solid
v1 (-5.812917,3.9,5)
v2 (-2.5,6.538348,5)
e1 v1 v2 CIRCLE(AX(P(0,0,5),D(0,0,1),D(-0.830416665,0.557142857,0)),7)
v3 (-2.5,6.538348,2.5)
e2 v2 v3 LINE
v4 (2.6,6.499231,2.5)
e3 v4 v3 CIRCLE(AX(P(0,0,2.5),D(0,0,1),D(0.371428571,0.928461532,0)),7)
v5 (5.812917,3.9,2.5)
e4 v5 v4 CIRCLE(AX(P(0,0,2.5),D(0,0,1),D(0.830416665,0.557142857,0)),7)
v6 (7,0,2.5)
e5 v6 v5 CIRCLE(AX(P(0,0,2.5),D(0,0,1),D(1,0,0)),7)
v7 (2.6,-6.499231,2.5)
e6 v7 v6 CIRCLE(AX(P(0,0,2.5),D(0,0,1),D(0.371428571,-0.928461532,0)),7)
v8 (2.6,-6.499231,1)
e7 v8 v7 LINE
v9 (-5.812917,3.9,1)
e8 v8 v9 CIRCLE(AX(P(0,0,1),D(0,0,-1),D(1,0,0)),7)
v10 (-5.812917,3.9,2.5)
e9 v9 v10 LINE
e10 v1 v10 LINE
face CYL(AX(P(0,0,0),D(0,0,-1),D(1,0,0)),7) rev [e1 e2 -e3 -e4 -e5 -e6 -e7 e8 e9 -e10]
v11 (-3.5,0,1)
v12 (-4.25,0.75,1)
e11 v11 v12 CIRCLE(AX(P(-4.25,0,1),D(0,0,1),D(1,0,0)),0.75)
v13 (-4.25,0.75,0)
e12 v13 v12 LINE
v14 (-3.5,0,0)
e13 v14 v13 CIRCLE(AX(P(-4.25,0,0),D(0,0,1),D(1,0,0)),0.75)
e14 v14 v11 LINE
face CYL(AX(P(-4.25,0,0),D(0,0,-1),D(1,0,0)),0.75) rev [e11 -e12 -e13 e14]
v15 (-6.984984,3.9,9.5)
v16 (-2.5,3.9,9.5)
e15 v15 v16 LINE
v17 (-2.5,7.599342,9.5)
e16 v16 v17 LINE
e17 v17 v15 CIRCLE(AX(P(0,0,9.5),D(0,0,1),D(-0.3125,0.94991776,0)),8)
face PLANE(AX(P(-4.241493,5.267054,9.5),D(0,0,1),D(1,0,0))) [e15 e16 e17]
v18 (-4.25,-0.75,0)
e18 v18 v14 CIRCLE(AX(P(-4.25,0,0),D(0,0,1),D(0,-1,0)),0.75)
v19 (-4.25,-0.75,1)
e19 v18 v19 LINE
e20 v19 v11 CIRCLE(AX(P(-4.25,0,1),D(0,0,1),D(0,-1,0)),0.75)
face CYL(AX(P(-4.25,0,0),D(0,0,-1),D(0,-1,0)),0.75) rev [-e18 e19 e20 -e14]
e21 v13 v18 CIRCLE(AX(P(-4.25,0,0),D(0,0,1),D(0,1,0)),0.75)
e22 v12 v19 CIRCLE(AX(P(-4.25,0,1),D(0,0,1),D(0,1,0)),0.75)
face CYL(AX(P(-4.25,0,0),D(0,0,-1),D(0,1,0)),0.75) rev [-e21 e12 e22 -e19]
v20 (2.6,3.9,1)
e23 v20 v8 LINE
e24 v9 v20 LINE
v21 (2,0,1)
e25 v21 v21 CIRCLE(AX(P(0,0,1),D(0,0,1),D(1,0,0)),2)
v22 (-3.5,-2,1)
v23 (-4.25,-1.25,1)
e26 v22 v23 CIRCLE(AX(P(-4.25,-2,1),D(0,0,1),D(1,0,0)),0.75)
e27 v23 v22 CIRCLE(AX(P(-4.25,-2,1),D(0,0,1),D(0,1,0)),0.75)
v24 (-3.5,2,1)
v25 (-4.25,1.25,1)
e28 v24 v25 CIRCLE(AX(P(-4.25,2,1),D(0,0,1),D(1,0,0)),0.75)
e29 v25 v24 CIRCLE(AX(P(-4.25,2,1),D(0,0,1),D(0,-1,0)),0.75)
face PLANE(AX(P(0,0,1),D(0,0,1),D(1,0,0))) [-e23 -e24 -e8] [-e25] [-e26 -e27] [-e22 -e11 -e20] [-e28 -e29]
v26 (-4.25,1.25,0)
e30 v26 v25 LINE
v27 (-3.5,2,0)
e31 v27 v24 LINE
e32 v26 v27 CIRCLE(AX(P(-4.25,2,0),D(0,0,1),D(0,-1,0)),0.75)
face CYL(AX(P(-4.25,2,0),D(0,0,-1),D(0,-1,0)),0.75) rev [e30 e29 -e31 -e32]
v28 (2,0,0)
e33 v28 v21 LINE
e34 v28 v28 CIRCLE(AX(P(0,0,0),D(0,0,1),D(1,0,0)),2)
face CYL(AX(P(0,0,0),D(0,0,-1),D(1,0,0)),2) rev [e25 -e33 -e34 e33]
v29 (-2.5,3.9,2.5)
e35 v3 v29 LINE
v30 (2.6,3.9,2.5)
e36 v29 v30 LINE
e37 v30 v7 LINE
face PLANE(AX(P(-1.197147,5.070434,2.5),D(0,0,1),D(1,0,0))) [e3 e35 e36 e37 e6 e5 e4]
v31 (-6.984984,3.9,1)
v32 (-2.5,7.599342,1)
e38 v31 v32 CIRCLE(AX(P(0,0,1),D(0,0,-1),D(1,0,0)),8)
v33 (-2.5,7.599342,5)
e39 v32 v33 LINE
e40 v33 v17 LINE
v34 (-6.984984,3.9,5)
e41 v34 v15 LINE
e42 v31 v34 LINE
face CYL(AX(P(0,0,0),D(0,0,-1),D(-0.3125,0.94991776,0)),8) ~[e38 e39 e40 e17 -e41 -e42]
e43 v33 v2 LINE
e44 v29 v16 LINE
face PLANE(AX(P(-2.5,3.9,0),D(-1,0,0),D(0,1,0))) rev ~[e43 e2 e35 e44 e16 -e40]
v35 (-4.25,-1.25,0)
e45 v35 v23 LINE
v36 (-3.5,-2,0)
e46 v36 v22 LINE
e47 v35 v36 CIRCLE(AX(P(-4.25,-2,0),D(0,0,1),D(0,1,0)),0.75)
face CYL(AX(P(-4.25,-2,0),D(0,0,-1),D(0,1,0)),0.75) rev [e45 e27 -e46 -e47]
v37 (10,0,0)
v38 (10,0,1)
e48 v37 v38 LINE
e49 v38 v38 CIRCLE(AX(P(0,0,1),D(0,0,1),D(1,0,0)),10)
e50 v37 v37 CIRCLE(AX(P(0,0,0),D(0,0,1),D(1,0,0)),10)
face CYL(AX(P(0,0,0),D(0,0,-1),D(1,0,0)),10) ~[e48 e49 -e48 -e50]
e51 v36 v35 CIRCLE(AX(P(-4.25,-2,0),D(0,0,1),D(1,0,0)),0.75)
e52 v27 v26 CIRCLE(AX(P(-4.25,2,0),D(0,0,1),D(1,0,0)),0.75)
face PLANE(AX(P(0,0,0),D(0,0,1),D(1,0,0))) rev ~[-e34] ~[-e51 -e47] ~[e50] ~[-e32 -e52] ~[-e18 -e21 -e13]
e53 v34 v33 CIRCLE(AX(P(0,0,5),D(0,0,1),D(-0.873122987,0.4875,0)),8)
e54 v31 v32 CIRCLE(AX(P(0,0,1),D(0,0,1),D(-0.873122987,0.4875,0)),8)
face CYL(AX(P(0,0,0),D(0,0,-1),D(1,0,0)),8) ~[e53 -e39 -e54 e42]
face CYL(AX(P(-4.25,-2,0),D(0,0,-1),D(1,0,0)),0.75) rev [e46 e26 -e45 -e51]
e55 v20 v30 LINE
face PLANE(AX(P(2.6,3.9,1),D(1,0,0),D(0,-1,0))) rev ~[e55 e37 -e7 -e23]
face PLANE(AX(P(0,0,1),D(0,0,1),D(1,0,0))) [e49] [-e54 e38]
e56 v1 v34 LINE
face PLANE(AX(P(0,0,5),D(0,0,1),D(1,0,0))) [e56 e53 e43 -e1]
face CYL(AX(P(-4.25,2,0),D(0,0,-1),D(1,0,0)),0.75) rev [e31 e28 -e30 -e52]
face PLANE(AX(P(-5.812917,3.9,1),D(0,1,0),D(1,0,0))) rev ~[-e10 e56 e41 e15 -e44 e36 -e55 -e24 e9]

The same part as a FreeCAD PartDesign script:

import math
import FreeCAD as App
import Part
import Sketcher
Q = App.Units.Quantity

doc = App.newDocument("Part")
body = doc.addObject("PartDesign::Body", "Body")

# Sketch on XY plane
sketch1 = body.newObject("Sketcher::SketchObject", "Sketch")
sketch1.AttachmentSupport = (doc.getObject("XY_Plane"), [""])
sketch1.MapMode = "FlatFace"
sketch1.addGeometry([
    Part.Circle(App.Vector(0, 0, 0), App.Vector(0, 0, 1), 10),
    Part.Circle(App.Vector(0, 0, 0), App.Vector(0, 0, 1), 2),
], False)
sketch1.addConstraint([
    Sketcher.Constraint("Coincident", 0, 3, -1, 1),
    Sketcher.Constraint("Coincident", 1, 3, -1, 1),
    Sketcher.Constraint("Diameter", 0, Q("20 mm")),
    Sketcher.Constraint("Diameter", 1, Q("4 mm")),
])
pad1 = body.newObject("PartDesign::Pad", "Pad")
pad1.Profile = sketch1
pad1.Length = 1

# Sketch on XY plane
sketch2 = body.newObject("Sketcher::SketchObject", "Sketch001")
sketch2.AttachmentSupport = (doc.getObject("XY_Plane"), [""])
sketch2.MapMode = "FlatFace"
sketch2.addGeometry([
    Part.Circle(App.Vector(0, 0, 0), App.Vector(0, 0, 1), 8),
    Part.Circle(App.Vector(0, 0, 0), App.Vector(0, 0, 1), 7),
], False)
sketch2.addConstraint([
    Sketcher.Constraint("Coincident", 0, 3, -1, 1),
    Sketcher.Constraint("Coincident", 1, 3, -1, 1),
    Sketcher.Constraint("Diameter", 0, Q("16 mm")),
    Sketcher.Constraint("Diameter", 1, Q("14 mm")),
])
pad2 = body.newObject("PartDesign::Pad", "Pad001")
pad2.Profile = sketch2
pad2.Length = 5

# Sketch on XY plane
sketch3 = body.newObject("Sketcher::SketchObject", "Sketch002")
sketch3.AttachmentSupport = (doc.getObject("XY_Plane"), [""])
sketch3.MapMode = "FlatFace"
sketch3.AttachmentOffset = App.Placement(App.Vector(0, 0, 1), App.Rotation())
sketch3.addGeometry([
    Part.ArcOfCircle(Part.Circle(App.Vector(0, 0, 0), App.Vector(0, 0, 1), 7), math.radians(68), math.radians(146)),  # 0
    Part.LineSegment(App.Vector(-5.8, 3.9, 0), App.Vector(2.6, 3.9, 0)),  # 1
    Part.LineSegment(App.Vector(2.6, 3.9, 0), App.Vector(2.6, -6.5, 0)),  # 2
    Part.ArcOfCircle(Part.Circle(App.Vector(0, 0, 0), App.Vector(0, 0, 1), 7), math.radians(-68), math.radians(0)),  # 3
    Part.ArcOfCircle(Part.Circle(App.Vector(0, 0, 0), App.Vector(0, 0, 1), 7), math.radians(0), math.radians(34)),  # 4
    Part.ArcOfCircle(Part.Circle(App.Vector(0, 0, 0), App.Vector(0, 0, 1), 7), math.radians(34), math.radians(68)),  # 5
], False)
sketch3.addConstraint([
    Sketcher.Constraint("Coincident", 0, 2, 1, 1),
    Sketcher.Constraint("Coincident", 1, 2, 2, 1),
    Sketcher.Constraint("Coincident", 2, 2, 3, 1),
    Sketcher.Constraint("Tangent", 3, 2, 4, 1),
    Sketcher.Constraint("Tangent", 4, 2, 5, 1),
    Sketcher.Constraint("Tangent", 5, 2, 0, 1),
    Sketcher.Constraint("Horizontal", 1),
    Sketcher.Constraint("Vertical", 2),
    Sketcher.Constraint("Coincident", 0, 3, -1, 1),
    Sketcher.Constraint("Coincident", 3, 3, -1, 1),
    Sketcher.Constraint("Equal", 0, 3),
    Sketcher.Constraint("PointOnObject", 3, 2, -1),
    Sketcher.Constraint("Horizontal", 1, 2, 4, 2),
    Sketcher.Constraint("Vertical", 2, 2, 5, 2),
    Sketcher.Constraint("Radius", 0, Q("7 mm")),
    Sketcher.Constraint("DistanceY", -1, 1, 0, 2, Q("3.9 mm")),
    Sketcher.Constraint("DistanceX", -1, 1, 1, 2, Q("2.6 mm")),
])
pad3 = body.newObject("PartDesign::Pad", "Pad002")
pad3.Profile = sketch3
pad3.Length = 1.5

# Sketch on XY plane
sketch4 = body.newObject("Sketcher::SketchObject", "Sketch003")
sketch4.AttachmentSupport = (doc.getObject("XY_Plane"), [""])
sketch4.MapMode = "FlatFace"
sketch4.addGeometry([
    Part.ArcOfCircle(Part.Circle(App.Vector(-4.2, 2, 0), App.Vector(0, 0, 1), 0.8), math.radians(0), math.radians(270)),  # 0
    Part.ArcOfCircle(Part.Circle(App.Vector(-4.2, 2, 0), App.Vector(0, 0, 1), 0.8), math.radians(-90), math.radians(0)),  # 1
    Part.ArcOfCircle(Part.Circle(App.Vector(-4.2, 0, 0), App.Vector(0, 0, 1), 0.8), math.radians(0), math.radians(90)),  # 2
    Part.ArcOfCircle(Part.Circle(App.Vector(-4.2, 0, 0), App.Vector(0, 0, 1), 0.8), math.radians(90), math.radians(270)),  # 3
    Part.ArcOfCircle(Part.Circle(App.Vector(-4.2, 0, 0), App.Vector(0, 0, 1), 0.8), math.radians(-90), math.radians(0)),  # 4
    Part.ArcOfCircle(Part.Circle(App.Vector(-4.2, -2, 0), App.Vector(0, 0, 1), 0.8), math.radians(0), math.radians(90)),  # 5
    Part.ArcOfCircle(Part.Circle(App.Vector(-4.2, -2, 0), App.Vector(0, 0, 1), 0.8), math.radians(90), math.radians(360)),  # 6
], False)
sketch4.addConstraint([
    Sketcher.Constraint("Tangent", 0, 1, 1, 2),
    Sketcher.Constraint("Coincident", 1, 1, 0, 2),
    Sketcher.Constraint("Tangent", 2, 2, 3, 1),
    Sketcher.Constraint("Tangent", 3, 2, 4, 1),
    Sketcher.Constraint("Tangent", 4, 2, 2, 1),
    Sketcher.Constraint("Tangent", 5, 1, 6, 2),
    Sketcher.Constraint("Coincident", 6, 1, 5, 2),
    Sketcher.Constraint("Equal", 1, 2),
    Sketcher.Constraint("Equal", 4, 5),
    Sketcher.Constraint("Symmetric", 0, 3, 5, 3, -1),
    Sketcher.Constraint("Symmetric", 2, 2, 3, 2, -1),
    Sketcher.Constraint("PointOnObject", 4, 2, -1),
    Sketcher.Constraint("Horizontal", 1, 3, 0, 1),
    Sketcher.Constraint("Horizontal", 6, 3, 5, 1),
    Sketcher.Constraint("Vertical", 1, 3, 2, 3),
    Sketcher.Constraint("Vertical", 6, 3, 1, 1),
    Sketcher.Constraint("Vertical", 1, 1, 2, 2),
    Sketcher.Constraint("Vertical", 3, 2, 6, 1),
    Sketcher.Constraint("Radius", 0, Q("0.75 mm")),
    Sketcher.Constraint("DistanceY", -1, 1, 0, 3, Q("2 mm")),
    Sketcher.Constraint("DistanceX", 0, 1, -1, 1, Q("3.5 mm")),
])
pocket1 = body.newObject("PartDesign::Pocket", "Pocket")
pocket1.Profile = sketch4
pocket1.Type = "ThroughAll"
pocket1.Reversed = True

# Sketch on XY plane
sketch5 = body.newObject("Sketcher::SketchObject", "Sketch004")
sketch5.AttachmentSupport = (doc.getObject("XY_Plane"), [""])
sketch5.MapMode = "FlatFace"
sketch5.addGeometry([
    Part.LineSegment(App.Vector(-2.5, 3.9, 0), App.Vector(-2.5, 7.6, 0)),
    Part.ArcOfCircle(Part.Circle(App.Vector(0, 0, 0), App.Vector(0, 0, 1), 8), math.radians(108), math.radians(151)),
    Part.LineSegment(App.Vector(-7, 3.9, 0), App.Vector(-2.5, 3.9, 0)),
], False)
sketch5.addConstraint([
    Sketcher.Constraint("Coincident", 0, 2, 1, 1),
    Sketcher.Constraint("Coincident", 1, 2, 2, 1),
    Sketcher.Constraint("Coincident", 2, 2, 0, 1),
    Sketcher.Constraint("Vertical", 0),
    Sketcher.Constraint("Horizontal", 2),
    Sketcher.Constraint("Coincident", 1, 3, -1, 1),
    Sketcher.Constraint("Radius", 1, Q("8 mm")),
    Sketcher.Constraint("DistanceX", 0, 2, -1, 1, Q("2.5 mm")),
    Sketcher.Constraint("DistanceY", -1, 1, 1, 2, Q("3.9 mm")),
])
pad4 = body.newObject("PartDesign::Pad", "Pad003")
pad4.Profile = sketch5
pad4.Length = 9.5

doc.recompute()
